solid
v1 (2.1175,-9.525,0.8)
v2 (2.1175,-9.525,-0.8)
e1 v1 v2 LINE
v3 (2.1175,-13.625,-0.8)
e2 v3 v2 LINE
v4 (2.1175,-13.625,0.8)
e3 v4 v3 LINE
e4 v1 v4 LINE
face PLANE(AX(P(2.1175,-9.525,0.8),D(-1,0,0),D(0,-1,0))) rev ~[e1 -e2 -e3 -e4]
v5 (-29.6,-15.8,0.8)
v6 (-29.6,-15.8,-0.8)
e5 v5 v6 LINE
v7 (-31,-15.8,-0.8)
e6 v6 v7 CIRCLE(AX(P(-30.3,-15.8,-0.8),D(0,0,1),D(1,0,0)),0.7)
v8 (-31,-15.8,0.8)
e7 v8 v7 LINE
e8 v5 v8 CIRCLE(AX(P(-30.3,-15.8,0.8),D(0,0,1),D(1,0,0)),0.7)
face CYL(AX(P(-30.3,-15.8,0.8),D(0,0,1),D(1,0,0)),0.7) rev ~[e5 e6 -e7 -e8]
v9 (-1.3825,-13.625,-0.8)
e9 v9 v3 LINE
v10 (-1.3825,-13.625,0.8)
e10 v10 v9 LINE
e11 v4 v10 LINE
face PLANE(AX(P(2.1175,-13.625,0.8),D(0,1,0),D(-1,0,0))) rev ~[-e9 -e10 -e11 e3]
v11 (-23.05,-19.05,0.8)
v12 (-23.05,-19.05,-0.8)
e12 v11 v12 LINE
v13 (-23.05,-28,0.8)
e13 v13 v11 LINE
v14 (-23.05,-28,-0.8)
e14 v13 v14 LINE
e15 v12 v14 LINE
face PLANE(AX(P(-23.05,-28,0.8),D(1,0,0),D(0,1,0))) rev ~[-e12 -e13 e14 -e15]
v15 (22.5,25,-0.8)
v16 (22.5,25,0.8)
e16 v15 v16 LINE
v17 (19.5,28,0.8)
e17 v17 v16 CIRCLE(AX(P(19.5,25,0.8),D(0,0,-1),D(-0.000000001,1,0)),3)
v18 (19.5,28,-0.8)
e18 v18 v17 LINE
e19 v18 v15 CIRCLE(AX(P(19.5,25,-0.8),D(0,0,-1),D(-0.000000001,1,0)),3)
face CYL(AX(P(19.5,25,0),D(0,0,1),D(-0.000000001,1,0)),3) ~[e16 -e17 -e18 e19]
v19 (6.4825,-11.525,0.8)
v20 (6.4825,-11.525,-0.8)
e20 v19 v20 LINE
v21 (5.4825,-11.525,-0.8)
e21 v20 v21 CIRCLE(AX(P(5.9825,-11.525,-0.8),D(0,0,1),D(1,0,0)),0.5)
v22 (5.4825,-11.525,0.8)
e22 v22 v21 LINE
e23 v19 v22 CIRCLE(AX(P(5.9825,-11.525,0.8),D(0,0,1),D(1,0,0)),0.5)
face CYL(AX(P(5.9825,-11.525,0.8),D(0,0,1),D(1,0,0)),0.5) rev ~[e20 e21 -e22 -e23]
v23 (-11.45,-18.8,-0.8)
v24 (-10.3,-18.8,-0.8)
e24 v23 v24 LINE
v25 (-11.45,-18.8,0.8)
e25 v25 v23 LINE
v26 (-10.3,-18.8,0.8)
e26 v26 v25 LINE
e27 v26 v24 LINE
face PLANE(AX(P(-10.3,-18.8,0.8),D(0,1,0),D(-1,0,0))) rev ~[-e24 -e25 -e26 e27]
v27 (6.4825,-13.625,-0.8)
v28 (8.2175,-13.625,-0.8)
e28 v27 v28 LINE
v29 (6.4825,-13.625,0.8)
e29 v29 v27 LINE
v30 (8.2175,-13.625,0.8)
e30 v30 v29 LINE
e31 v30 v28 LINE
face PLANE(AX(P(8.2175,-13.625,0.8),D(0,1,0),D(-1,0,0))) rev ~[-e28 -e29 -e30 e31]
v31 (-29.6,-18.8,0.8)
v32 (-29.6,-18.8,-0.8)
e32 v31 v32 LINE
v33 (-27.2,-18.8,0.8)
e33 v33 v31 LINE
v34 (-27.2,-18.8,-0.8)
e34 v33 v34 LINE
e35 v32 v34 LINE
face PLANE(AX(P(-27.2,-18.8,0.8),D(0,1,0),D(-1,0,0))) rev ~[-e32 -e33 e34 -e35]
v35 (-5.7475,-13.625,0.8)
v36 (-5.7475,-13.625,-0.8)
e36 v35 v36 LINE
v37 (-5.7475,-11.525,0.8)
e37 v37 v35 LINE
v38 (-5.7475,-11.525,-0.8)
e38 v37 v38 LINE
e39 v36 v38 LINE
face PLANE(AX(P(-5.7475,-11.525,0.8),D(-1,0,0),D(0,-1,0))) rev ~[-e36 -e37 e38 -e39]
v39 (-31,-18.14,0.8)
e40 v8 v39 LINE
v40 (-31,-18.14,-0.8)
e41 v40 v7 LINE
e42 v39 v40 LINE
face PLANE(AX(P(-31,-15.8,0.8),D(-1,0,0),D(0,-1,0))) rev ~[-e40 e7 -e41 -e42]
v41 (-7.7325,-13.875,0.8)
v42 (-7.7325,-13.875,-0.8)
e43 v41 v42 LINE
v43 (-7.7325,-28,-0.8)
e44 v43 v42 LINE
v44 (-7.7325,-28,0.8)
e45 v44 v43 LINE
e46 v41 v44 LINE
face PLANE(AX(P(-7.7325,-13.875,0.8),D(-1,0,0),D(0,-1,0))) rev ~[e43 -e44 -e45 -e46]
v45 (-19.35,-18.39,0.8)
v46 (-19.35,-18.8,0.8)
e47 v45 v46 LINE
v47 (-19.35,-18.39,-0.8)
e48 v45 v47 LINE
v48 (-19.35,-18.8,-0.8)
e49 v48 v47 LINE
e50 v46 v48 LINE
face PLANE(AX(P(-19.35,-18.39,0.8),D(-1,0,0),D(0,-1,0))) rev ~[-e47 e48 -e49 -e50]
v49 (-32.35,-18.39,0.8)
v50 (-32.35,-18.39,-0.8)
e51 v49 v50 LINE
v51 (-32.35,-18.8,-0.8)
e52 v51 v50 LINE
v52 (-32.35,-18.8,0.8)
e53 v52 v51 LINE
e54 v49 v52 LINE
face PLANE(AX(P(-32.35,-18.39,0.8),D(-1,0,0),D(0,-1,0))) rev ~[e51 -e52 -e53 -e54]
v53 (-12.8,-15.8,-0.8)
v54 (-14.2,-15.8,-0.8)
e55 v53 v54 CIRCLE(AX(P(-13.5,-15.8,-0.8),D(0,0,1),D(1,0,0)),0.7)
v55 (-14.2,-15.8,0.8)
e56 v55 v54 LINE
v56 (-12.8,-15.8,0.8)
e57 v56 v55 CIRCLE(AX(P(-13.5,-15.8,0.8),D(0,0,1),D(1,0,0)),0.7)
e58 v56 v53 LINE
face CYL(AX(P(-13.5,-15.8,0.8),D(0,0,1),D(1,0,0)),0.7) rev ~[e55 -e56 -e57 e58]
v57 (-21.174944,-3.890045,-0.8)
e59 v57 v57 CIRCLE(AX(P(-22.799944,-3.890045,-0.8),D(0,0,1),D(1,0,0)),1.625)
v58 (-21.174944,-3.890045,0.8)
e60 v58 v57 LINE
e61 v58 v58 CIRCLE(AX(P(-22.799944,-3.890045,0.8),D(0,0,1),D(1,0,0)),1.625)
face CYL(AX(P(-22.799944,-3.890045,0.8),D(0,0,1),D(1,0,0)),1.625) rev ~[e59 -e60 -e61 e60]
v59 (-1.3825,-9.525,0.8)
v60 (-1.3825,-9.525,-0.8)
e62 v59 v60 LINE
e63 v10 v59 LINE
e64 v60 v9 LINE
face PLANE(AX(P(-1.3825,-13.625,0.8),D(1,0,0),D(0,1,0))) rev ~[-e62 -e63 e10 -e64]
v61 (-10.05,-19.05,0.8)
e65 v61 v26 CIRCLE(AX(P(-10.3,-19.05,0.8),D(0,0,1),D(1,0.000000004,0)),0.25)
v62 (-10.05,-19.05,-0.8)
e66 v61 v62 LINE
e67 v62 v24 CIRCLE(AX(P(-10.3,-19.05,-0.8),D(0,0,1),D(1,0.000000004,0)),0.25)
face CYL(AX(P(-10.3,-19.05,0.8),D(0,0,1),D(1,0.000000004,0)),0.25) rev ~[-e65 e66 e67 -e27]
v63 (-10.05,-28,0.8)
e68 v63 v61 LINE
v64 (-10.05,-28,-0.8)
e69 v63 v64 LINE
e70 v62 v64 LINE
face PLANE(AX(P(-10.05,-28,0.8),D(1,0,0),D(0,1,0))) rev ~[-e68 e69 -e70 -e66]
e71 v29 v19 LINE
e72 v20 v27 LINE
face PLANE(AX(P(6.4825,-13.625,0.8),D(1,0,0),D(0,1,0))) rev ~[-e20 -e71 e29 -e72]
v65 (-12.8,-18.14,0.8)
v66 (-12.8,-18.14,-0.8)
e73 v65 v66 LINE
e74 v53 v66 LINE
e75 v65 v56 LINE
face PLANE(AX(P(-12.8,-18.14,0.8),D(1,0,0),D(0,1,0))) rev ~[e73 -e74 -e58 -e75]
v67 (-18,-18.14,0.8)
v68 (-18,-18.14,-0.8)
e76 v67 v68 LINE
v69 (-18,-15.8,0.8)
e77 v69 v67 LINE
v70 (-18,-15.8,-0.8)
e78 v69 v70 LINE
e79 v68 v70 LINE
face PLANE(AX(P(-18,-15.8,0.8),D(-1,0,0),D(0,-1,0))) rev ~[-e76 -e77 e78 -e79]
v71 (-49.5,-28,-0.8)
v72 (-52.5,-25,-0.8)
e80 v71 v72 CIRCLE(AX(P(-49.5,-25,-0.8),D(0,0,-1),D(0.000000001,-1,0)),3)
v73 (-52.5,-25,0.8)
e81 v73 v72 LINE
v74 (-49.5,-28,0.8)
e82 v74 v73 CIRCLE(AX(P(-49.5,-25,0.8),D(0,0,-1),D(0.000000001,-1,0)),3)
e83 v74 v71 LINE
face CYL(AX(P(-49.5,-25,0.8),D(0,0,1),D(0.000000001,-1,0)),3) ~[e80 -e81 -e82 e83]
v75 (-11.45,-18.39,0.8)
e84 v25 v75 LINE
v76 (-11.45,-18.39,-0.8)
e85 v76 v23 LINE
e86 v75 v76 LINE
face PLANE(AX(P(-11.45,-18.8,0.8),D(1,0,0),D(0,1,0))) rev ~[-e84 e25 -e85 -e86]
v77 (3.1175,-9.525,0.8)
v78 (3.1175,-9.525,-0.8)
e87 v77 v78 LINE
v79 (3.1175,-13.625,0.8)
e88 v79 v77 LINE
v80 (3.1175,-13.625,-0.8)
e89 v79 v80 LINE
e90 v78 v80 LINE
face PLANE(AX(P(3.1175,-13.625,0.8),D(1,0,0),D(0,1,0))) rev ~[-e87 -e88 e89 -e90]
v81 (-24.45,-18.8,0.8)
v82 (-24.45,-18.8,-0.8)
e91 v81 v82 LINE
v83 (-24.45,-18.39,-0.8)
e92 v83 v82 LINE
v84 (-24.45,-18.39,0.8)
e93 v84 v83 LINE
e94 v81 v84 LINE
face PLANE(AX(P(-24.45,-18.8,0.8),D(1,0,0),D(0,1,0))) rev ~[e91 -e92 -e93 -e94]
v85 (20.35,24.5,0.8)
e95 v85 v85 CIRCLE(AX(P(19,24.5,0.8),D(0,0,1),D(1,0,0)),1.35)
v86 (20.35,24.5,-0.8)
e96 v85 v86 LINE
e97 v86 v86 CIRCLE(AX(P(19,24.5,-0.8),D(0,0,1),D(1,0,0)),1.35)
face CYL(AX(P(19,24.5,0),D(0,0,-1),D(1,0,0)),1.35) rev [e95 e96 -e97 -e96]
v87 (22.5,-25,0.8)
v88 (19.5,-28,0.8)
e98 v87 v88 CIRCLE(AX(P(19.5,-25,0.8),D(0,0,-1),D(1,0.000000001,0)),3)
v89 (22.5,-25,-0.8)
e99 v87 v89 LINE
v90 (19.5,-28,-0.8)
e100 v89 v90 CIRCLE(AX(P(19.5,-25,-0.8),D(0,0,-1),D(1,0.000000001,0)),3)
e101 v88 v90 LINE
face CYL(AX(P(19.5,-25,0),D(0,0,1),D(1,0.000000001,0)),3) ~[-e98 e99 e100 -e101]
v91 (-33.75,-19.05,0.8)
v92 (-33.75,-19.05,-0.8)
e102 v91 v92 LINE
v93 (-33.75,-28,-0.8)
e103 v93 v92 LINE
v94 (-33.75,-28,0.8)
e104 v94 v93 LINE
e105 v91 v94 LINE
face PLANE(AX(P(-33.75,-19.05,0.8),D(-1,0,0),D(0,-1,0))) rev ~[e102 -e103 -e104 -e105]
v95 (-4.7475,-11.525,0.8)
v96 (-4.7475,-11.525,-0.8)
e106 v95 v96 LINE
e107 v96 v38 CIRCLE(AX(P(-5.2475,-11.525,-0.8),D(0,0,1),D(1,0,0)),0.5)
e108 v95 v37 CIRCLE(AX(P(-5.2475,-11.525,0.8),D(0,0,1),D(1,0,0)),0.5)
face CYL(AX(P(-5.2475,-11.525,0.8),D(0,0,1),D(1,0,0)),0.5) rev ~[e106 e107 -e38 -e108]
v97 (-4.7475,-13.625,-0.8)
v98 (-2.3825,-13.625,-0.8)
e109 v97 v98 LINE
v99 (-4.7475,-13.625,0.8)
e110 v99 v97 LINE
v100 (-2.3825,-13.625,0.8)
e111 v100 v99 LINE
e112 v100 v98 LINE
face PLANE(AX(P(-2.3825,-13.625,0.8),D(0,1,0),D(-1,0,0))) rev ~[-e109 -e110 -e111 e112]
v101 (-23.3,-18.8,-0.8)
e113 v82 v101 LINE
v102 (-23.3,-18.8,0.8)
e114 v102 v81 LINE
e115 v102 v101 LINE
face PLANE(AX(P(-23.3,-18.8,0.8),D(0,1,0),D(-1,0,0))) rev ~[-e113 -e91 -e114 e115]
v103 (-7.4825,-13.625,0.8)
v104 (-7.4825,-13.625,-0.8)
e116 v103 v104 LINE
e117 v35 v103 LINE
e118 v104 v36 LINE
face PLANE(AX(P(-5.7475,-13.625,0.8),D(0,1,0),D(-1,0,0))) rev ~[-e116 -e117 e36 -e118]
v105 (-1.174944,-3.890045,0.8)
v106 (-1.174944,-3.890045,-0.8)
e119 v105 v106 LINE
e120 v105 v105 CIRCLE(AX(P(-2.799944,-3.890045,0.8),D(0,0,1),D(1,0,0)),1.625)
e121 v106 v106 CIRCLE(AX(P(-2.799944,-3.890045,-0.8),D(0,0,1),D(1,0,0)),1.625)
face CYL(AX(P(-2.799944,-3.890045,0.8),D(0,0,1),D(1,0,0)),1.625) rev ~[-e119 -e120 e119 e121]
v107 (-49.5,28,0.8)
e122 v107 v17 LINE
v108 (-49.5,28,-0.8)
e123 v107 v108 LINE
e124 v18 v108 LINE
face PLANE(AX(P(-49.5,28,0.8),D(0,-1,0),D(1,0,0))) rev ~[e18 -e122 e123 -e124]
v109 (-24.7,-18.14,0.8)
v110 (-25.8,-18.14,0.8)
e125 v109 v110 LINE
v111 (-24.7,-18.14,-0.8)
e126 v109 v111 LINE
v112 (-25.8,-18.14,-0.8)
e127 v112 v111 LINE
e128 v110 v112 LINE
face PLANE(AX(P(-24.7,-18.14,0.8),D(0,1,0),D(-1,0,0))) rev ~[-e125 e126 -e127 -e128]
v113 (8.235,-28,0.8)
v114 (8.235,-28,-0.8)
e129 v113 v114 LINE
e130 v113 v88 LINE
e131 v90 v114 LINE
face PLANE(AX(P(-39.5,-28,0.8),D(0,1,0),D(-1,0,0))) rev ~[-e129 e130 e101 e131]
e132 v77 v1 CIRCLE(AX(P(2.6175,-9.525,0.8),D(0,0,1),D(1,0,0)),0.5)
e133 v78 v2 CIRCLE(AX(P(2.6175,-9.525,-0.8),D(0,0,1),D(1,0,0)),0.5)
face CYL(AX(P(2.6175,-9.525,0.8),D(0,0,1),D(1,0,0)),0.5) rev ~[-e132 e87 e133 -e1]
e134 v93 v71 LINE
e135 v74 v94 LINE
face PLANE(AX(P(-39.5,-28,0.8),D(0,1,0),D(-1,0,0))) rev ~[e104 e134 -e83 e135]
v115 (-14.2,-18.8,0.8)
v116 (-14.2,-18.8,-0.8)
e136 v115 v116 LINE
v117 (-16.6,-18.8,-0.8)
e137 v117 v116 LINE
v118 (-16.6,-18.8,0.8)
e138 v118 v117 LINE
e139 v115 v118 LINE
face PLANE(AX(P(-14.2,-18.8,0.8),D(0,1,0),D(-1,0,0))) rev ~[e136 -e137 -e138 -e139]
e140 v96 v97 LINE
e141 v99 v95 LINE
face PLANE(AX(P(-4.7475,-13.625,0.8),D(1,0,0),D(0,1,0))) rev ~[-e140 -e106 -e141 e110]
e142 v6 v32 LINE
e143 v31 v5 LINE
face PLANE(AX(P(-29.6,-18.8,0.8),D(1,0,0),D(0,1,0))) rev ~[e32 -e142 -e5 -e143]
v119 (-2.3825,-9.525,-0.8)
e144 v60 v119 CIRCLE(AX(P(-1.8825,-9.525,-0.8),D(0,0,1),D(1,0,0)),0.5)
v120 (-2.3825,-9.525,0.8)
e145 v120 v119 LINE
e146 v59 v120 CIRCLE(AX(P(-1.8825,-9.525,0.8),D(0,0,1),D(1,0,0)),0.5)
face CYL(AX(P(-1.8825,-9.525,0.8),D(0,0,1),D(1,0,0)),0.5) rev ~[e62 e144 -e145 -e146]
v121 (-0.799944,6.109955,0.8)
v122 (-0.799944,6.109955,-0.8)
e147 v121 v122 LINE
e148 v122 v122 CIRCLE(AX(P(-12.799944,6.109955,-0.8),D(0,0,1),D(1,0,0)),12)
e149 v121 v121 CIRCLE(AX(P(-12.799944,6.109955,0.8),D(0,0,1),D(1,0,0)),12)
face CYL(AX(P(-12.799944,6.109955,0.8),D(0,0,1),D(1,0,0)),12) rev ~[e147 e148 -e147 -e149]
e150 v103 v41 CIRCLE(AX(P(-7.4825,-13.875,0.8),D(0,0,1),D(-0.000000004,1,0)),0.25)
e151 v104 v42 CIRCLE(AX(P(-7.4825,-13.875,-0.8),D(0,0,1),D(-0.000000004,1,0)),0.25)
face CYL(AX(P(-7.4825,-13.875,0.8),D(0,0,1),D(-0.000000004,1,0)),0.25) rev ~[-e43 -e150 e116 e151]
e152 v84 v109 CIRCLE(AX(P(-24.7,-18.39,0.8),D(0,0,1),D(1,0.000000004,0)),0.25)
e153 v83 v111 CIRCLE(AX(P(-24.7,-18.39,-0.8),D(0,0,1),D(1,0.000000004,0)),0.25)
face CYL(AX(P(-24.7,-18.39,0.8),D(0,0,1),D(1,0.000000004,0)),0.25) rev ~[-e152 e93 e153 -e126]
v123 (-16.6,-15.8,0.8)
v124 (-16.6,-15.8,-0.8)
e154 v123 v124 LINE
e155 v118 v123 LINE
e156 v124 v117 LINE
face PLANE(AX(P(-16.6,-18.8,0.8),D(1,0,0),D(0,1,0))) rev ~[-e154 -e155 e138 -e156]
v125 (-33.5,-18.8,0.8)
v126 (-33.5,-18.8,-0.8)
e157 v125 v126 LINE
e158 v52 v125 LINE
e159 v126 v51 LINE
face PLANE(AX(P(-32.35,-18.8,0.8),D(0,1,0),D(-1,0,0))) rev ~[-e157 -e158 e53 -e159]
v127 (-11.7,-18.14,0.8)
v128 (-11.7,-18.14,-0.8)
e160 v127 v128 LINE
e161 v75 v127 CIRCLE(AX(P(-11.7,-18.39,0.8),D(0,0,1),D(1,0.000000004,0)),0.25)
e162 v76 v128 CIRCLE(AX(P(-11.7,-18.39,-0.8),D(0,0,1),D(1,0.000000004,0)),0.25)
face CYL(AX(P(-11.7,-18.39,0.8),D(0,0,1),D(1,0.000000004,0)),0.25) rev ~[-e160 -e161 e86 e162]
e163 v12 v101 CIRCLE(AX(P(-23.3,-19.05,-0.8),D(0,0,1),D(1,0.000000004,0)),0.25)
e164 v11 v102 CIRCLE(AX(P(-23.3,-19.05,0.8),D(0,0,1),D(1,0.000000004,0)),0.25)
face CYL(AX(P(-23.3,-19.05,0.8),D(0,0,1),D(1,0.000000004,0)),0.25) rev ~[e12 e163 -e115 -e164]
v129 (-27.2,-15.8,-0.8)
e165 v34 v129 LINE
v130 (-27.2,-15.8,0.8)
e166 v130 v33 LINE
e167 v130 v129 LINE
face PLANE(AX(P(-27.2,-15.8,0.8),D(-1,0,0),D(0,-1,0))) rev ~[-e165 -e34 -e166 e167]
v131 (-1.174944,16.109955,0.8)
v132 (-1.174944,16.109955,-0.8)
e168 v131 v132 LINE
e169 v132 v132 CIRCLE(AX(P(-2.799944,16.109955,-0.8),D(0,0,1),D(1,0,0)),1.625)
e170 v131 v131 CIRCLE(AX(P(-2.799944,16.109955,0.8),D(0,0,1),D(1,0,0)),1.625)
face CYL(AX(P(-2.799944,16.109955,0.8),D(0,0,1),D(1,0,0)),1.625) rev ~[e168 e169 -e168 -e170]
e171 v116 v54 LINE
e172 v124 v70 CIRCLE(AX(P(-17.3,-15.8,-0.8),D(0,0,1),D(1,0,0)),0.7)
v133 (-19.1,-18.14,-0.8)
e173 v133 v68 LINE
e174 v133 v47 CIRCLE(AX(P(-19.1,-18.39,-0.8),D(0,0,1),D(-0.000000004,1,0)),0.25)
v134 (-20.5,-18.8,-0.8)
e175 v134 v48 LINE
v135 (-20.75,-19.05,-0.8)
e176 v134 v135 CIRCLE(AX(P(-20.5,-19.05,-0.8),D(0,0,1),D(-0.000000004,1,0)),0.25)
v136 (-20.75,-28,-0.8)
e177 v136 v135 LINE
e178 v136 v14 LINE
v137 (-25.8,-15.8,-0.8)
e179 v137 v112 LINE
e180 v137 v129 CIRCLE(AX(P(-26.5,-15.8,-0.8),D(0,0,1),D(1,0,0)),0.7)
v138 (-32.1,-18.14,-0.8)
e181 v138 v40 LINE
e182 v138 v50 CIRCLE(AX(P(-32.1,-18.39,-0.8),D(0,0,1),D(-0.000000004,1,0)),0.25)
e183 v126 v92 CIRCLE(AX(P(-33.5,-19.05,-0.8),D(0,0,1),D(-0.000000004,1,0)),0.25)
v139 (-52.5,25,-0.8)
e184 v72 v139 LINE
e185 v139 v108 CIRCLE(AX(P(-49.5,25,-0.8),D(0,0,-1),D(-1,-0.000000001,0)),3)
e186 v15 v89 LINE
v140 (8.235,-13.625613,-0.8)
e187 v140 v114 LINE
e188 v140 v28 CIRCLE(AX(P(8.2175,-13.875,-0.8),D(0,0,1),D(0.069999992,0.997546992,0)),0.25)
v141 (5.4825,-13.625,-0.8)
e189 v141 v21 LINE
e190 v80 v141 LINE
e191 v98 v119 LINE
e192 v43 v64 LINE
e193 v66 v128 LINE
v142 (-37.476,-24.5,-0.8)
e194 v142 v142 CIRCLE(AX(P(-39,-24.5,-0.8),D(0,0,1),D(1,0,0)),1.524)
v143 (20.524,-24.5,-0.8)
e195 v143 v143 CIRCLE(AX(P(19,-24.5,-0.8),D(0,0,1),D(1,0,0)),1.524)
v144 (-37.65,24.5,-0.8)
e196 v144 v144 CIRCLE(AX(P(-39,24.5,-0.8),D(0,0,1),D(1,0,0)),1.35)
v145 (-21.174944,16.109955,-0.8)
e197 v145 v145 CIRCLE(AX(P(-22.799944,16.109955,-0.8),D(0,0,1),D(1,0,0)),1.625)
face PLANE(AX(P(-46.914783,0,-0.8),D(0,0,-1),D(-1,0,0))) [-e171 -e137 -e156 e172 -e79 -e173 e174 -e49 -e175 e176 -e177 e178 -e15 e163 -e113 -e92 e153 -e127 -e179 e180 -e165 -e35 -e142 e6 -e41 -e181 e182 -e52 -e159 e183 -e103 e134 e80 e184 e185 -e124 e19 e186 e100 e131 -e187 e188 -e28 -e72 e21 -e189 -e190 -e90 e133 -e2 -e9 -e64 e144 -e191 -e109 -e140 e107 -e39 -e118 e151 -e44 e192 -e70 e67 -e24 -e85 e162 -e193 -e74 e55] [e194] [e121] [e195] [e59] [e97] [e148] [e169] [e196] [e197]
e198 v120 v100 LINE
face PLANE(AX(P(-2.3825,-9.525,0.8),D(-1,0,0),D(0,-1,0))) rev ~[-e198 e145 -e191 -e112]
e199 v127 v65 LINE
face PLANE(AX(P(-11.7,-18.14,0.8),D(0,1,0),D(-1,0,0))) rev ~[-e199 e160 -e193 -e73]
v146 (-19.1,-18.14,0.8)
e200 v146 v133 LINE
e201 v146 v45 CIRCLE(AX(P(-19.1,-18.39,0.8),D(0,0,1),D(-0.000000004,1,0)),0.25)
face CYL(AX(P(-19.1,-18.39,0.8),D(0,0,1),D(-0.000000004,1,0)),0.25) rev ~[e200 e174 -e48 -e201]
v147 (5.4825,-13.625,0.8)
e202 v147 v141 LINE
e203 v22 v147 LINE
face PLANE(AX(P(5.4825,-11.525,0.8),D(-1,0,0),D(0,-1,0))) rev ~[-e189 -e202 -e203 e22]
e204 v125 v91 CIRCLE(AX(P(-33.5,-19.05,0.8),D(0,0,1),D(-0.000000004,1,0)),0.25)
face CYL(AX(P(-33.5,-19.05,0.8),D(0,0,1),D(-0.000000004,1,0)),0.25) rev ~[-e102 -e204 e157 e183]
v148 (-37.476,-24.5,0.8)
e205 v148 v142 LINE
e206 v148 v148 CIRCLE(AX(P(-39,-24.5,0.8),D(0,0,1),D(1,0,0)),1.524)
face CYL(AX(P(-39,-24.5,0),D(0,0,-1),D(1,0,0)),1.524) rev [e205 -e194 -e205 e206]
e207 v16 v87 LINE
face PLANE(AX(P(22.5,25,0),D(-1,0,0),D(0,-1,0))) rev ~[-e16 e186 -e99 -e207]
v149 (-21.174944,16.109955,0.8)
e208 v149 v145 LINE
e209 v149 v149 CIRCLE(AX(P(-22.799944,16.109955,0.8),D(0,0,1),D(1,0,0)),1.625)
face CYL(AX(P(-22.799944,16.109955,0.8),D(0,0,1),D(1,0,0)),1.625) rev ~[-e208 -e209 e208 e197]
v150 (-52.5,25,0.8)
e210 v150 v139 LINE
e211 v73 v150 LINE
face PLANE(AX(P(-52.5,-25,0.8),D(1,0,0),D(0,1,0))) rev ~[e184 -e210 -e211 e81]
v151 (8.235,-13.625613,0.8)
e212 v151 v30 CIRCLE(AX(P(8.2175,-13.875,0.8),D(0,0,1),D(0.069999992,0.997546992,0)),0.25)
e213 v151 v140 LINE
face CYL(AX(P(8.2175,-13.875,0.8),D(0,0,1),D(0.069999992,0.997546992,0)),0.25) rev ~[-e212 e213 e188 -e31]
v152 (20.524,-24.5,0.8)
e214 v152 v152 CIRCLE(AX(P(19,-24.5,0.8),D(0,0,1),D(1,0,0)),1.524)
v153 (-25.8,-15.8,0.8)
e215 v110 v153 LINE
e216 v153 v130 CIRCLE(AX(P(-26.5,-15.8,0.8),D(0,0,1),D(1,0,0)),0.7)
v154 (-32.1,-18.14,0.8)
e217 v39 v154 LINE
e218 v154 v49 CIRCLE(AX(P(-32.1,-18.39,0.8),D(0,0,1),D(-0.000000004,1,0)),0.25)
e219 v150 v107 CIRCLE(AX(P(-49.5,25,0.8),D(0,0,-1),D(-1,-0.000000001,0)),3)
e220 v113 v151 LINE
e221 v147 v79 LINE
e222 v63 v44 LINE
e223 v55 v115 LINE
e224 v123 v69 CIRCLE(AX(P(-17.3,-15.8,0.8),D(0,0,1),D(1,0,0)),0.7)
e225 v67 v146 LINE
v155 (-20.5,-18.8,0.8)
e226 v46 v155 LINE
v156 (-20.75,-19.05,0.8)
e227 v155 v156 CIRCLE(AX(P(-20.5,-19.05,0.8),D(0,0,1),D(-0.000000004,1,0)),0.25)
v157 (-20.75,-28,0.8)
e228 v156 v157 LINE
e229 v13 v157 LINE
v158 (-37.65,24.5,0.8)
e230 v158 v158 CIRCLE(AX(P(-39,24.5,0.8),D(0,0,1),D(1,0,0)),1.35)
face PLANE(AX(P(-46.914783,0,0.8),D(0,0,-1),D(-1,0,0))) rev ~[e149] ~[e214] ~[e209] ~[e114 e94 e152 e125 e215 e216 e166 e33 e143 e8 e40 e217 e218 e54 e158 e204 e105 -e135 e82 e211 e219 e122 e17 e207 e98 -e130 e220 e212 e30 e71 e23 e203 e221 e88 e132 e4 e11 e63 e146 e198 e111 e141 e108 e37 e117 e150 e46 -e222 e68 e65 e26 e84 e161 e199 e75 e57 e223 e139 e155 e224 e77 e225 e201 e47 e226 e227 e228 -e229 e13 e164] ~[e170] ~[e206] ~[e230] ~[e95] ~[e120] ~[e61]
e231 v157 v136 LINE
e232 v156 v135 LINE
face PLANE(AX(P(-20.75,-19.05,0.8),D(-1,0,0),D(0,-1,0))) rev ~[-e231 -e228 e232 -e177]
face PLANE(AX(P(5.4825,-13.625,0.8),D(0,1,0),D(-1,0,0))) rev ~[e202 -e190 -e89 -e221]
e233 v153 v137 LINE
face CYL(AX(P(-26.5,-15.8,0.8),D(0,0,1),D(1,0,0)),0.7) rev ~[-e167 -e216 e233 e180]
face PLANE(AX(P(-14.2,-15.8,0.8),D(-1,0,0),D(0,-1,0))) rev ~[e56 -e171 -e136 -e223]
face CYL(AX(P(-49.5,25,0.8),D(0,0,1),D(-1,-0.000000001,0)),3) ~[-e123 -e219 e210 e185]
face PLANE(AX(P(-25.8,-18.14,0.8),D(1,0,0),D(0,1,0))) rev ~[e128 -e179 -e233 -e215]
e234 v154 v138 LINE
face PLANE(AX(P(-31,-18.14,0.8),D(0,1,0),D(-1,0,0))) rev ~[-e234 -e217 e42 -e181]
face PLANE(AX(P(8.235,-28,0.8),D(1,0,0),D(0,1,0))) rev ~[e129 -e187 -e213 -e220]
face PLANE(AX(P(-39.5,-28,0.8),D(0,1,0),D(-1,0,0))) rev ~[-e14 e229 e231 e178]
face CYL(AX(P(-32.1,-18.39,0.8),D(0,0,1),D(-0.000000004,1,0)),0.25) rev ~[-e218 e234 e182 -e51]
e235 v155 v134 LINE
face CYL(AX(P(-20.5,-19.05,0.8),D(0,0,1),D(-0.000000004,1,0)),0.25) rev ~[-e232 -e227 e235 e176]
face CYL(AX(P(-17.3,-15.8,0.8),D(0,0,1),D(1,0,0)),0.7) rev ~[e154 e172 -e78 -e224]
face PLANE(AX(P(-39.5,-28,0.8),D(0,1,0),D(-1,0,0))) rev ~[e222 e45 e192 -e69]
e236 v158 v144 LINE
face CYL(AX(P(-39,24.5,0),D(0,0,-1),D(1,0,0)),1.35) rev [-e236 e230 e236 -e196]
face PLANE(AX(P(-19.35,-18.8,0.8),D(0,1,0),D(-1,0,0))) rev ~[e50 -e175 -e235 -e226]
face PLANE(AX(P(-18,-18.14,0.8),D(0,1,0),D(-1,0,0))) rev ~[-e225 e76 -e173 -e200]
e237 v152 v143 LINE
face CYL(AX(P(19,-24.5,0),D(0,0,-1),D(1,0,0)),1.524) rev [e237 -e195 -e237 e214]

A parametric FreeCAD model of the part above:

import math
import FreeCAD as App
import Part
import Sketcher

doc = App.newDocument("Part")
body = doc.addObject("PartDesign::Body", "Body")

# Sketch on XY plane
sketch1 = body.newObject("Sketcher::SketchObject", "Sketch")
sketch1.AttachmentSupport = (doc.getObject("XY_Plane"), [""])
sketch1.MapMode = "FlatFace"
sketch1.addGeometry(Part.LineSegment(App.Vector(22.5, -25, 0), App.Vector(22.5, 25, 0)), False)
sketch1.addGeometry(Part.ArcOfCircle(Part.Circle(App.Vector(19.5, 25, 0), App.Vector(0, 0, 1), 3), math.radians(0), math.radians(90)), False)
sketch1.addGeometry(Part.LineSegment(App.Vector(19.5, 28, 0), App.Vector(-39.5, 28, 0)), False)
sketch1.addGeometry(Part.ArcOfCircle(Part.Circle(App.Vector(-39.5, 25, 0), App.Vector(0, 0, 1), 3), math.radians(90), math.radians(180)), False)
sketch1.addGeometry(Part.LineSegment(App.Vector(-42.5, 25, 0), App.Vector(-42.5, -25, 0)), False)
sketch1.addGeometry(Part.ArcOfCircle(Part.Circle(App.Vector(-39.5, -25, 0), App.Vector(0, 0, 1), 3), math.radians(180), math.radians(270)), False)
sketch1.addGeometry(Part.LineSegment(App.Vector(-39.5, -28, 0), App.Vector(19.5, -28, 0)), False)
sketch1.addGeometry(Part.ArcOfCircle(Part.Circle(App.Vector(19.5, -25, 0), App.Vector(0, 0, 1), 3), math.radians(-90), math.radians(0)), False)
sketch1.addGeometry(Part.Circle(App.Vector(19, -24.5, 0), App.Vector(0, 0, 1), 1.5), False)
sketch1.addGeometry(Part.Circle(App.Vector(-39, -24.5, 0), App.Vector(0, 0, 1), 1.5), False)
sketch1.addGeometry(Part.Circle(App.Vector(19, 24.5, 0), App.Vector(0, 0, 1), 1.4), False)
sketch1.addGeometry(Part.Circle(App.Vector(-39, 24.5, 0), App.Vector(0, 0, 1), 1.4), False)
sketch1.addConstraint(Sketcher.Constraint("Tangent", 0, 2, 1, 1))
sketch1.addConstraint(Sketcher.Constraint("Tangent", 1, 2, 2, 1))
sketch1.addConstraint(Sketcher.Constraint("Tangent", 2, 2, 3, 1))
sketch1.addConstraint(Sketcher.Constraint("Tangent", 3, 2, 4, 1))
sketch1.addConstraint(Sketcher.Constraint("Tangent", 4, 2, 5, 1))
sketch1.addConstraint(Sketcher.Constraint("Tangent", 5, 2, 6, 1))
sketch1.addConstraint(Sketcher.Constraint("Tangent", 6, 2, 7, 1))
sketch1.addConstraint(Sketcher.Constraint("Tangent", 7, 2, 0, 1))
sketch1.addConstraint(Sketcher.Constraint("Vertical", 0))
sketch1.addConstraint(Sketcher.Constraint("Horizontal", 2))
sketch1.addConstraint(Sketcher.Constraint("Vertical", 4))
sketch1.addConstraint(Sketcher.Constraint("Horizontal", 6))
sketch1.addConstraint(Sketcher.Constraint("Equal", 1, 3))
sketch1.addConstraint(Sketcher.Constraint("Equal", 3, 5))
sketch1.addConstraint(Sketcher.Constraint("Equal", 5, 7))
sketch1.addConstraint(Sketcher.Constraint("Equal", 8, 9))
sketch1.addConstraint(Sketcher.Constraint("Equal", 10, 11))
sketch1.addConstraint(Sketcher.Constraint("Symmetric", 8, 3, 10, 3, -1))
sketch1.addConstraint(Sketcher.Constraint("Symmetric", 9, 3, 11, 3, -1))
sketch1.addConstraint(Sketcher.Constraint("Horizontal", 8, 3, 9, 3))
sketch1.addConstraint(Sketcher.Constraint("Radius", 1, 3.0))
sketch1.addConstraint(Sketcher.Constraint("Diameter", 10, 2.7))
sketch1.addConstraint(Sketcher.Constraint("DistanceX", 2, 2, 2, 1, 59.0))
sketch1.addConstraint(Sketcher.Constraint("DistanceY", 0, 1, 0, 2, 50.0))
sketch1.addConstraint(Sketcher.Constraint("Diameter", 8, 3.048))
sketch1.addConstraint(Sketcher.Constraint("DistanceY", -1, 1, 1, 3, 25.0))
sketch1.addConstraint(Sketcher.Constraint("DistanceX", -1, 1, 8, 3, 19.0))
sketch1.addConstraint(Sketcher.Constraint("DistanceX", 9, 3, -1, 1, 39.0))
sketch1.addConstraint(Sketcher.Constraint("DistanceY", 8, 3, 10, 3, 49.0))
sketch1.addConstraint(Sketcher.Constraint("DistanceX", -1, 1, 1, 3, 19.5))
pad1 = body.newObject("PartDesign::Pad", "Pad")
pad1.Profile = sketch1
pad1.Length = 1.6
pad1.Midplane = True

# Sketch on XY plane
sketch2 = body.newObject("Sketcher::SketchObject", "Sketch001")
sketch2.AttachmentSupport = (doc.getObject("XY_Plane"), [""])
sketch2.MapMode = "FlatFace"
sketch2.AttachmentOffset = App.Placement(App.Vector(0, 0, 0.8), App.Rotation())
sketch2.addGeometry(Part.Circle(App.Vector(-2.8, 16.1, 0), App.Vector(0, 0, 1), 1.6), False)
sketch2.addGeometry(Part.Circle(App.Vector(-22.8, 16.1, 0), App.Vector(0, 0, 1), 1.6), False)
sketch2.addGeometry(Part.Circle(App.Vector(-22.8, -3.9, 0), App.Vector(0, 0, 1), 1.6), False)
sketch2.addGeometry(Part.Circle(App.Vector(-2.8, -3.9, 0), App.Vector(0, 0, 1), 1.6), False)
sketch2.addGeometry(Part.Circle(App.Vector(-12.8, 6.1, 0), App.Vector(0, 0, 1), 12), False)
sketch2.addConstraint(Sketcher.Constraint("Equal", 0, 1))
sketch2.addConstraint(Sketcher.Constraint("Equal", 1, 2))
sketch2.addConstraint(Sketcher.Constraint("Equal", 2, 3))
sketch2.addConstraint(Sketcher.Constraint("Horizontal", 0, 3, 1, 3))
sketch2.addConstraint(Sketcher.Constraint("Horizontal", 2, 3, 3, 3))
sketch2.addConstraint(Sketcher.Constraint("Vertical", 1, 3, 2, 3))
sketch2.addConstraint(Sketcher.Constraint("Vertical", 0, 3, 3, 3))
sketch2.addConstraint(Sketcher.Constraint("Diameter", 4, 24.0))
sketch2.addConstraint(Sketcher.Constraint("Diameter", 0, 3.25))
sketch2.addConstraint(Sketcher.Constraint("DistanceX", 1, 3, 0, 3, 20.0))
sketch2.addConstraint(Sketcher.Constraint("DistanceY", 2, 3, 1, 3, 20.0))
sketch2.addConstraint(Sketcher.Constraint("DistanceX", 4, 3, 0, 3, 10.0))
sketch2.addConstraint(Sketcher.Constraint("DistanceY", 4, 3, 0, 3, 10.0))
sketch2.addConstraint(Sketcher.Constraint("DistanceX", 0, 3, -1, 1, 2.799944))
sketch2.addConstraint(Sketcher.Constraint("DistanceY", -1, 1, 0, 3, 16.109955))
pocket1 = body.newObject("PartDesign::Pocket", "Pocket")
pocket1.Profile = sketch2
pocket1.Type = "ThroughAll"

# Sketch on XY plane
sketch3 = body.newObject("Sketcher::SketchObject", "Sketch002")
sketch3.AttachmentSupport = (doc.getObject("XY_Plane"), [""])
sketch3.MapMode = "FlatFace"
sketch3.AttachmentOffset = App.Placement(App.Vector(0, 0, 0.8), App.Rotation())
sketch3.addGeometry(Part.LineSegment(App.Vector(-39.5, 28, 0), App.Vector(-49.5, 28, 0)), False)
sketch3.addGeometry(Part.ArcOfCircle(Part.Circle(App.Vector(-49.5, 25, 0), App.Vector(0, 0, 1), 3), math.radians(90), math.radians(180)), False)
sketch3.addGeometry(Part.LineSegment(App.Vector(-52.5, 25, 0), App.Vector(-52.5, -25, 0)), False)
sketch3.addGeometry(Part.ArcOfCircle(Part.Circle(App.Vector(-49.5, -25, 0), App.Vector(0, 0, 1), 3), math.radians(180), math.radians(270)), False)
sketch3.addGeometry(Part.LineSegment(App.Vector(-49.5, -28, 0), App.Vector(-39.5, -28, 0)), False)
sketch3.addGeometry(Part.ArcOfCircle(Part.Circle(App.Vector(-39.5, -25, 0), App.Vector(0, 0, 1), 3), math.radians(180), math.radians(270)), False)
sketch3.addGeometry(Part.LineSegment(App.Vector(-42.5, -25, 0), App.Vector(-42.5, 25, 0)), False)
sketch3.addGeometry(Part.ArcOfCircle(Part.Circle(App.Vector(-39.5, 25, 0), App.Vector(0, 0, 1), 3), math.radians(90), math.radians(180)), False)
sketch3.addConstraint(Sketcher.Constraint("Tangent", 0, 2, 1, 1))
sketch3.addConstraint(Sketcher.Constraint("Tangent", 1, 2, 2, 1))
sketch3.addConstraint(Sketcher.Constraint("Tangent", 2, 2, 3, 1))
sketch3.addConstraint(Sketcher.Constraint("Tangent", 3, 2, 4, 1))
sketch3.addConstraint(Sketcher.Constraint("Tangent", 4, 2, 5, 2))
sketch3.addConstraint(Sketcher.Constraint("Tangent", 5, 1, 6, 1))
sketch3.addConstraint(Sketcher.Constraint("Tangent", 6, 2, 7, 2))
sketch3.addConstraint(Sketcher.Constraint("Tangent", 7, 1, 0, 1))
sketch3.addConstraint(Sketcher.Constraint("Horizontal", 0))
sketch3.addConstraint(Sketcher.Constraint("Vertical", 2))
sketch3.addConstraint(Sketcher.Constraint("Horizontal", 4))
sketch3.addConstraint(Sketcher.Constraint("Vertical", 6))
sketch3.addConstraint(Sketcher.Constraint("Equal", 1, 3))
sketch3.addConstraint(Sketcher.Constraint("Equal", 3, 5))
sketch3.addConstraint(Sketcher.Constraint("Equal", 5, 7))
sketch3.addConstraint(Sketcher.Constraint("Radius", 1, 3.0))
sketch3.addConstraint(Sketcher.Constraint("DistanceX", 0, 2, 0, 1, 10.0))
sketch3.addConstraint(Sketcher.Constraint("DistanceY", 2, 2, 2, 1, 50.0))
sketch3.addConstraint(Sketcher.Constraint("DistanceY", -1, 1, 1, 3, 25.0))
sketch3.addConstraint(Sketcher.Constraint("DistanceX", 1, 3, -1, 1, 49.5))
pad2 = body.newObject("PartDesign::Pad", "Pad001")
pad2.Profile = sketch3
pad2.Length = 1.6
pad2.Reversed = True

# Sketch on XY plane
sketch4 = body.newObject("Sketcher::SketchObject", "Sketch003")
sketch4.AttachmentSupport = (doc.getObject("XY_Plane"), [""])
sketch4.MapMode = "FlatFace"
sketch4.AttachmentOffset = App.Placement(App.Vector(0, 0, 0.8), App.Rotation())
sketch4.addGeometry(Part.LineSegment(App.Vector(-27.2, -18.8, 0), App.Vector(-29.6, -18.8, 0)), False)
sketch4.addGeometry(Part.LineSegment(App.Vector(-29.6, -18.8, 0), App.Vector(-29.6, -15.8, 0)), False)
sketch4.addGeometry(Part.ArcOfCircle(Part.Circle(App.Vector(-30.3, -15.8, 0), App.Vector(0, 0, 1), 0.7), math.radians(0), math.radians(180)), False)
sketch4.addGeometry(Part.LineSegment(App.Vector(-31, -15.8, 0), App.Vector(-31, -18.14, 0)), False)
sketch4.addGeometry(Part.LineSegment(App.Vector(-31, -18.14, 0), App.Vector(-32.1, -18.14, 0)), False)
sketch4.addGeometry(Part.ArcOfCircle(Part.Circle(App.Vector(-32.1, -18.39, 0), App.Vector(0, 0, 1), 0.25), math.radians(90), math.radians(180)), False)
sketch4.addGeometry(Part.LineSegment(App.Vector(-32.35, -18.39, 0), App.Vector(-32.35, -18.8, 0)), False)
sketch4.addGeometry(Part.LineSegment(App.Vector(-32.35, -18.8, 0), App.Vector(-33.5, -18.8, 0)), False)
sketch4.addGeometry(Part.ArcOfCircle(Part.Circle(App.Vector(-33.5, -19.05, 0), App.Vector(0, 0, 1), 0.25), math.radians(90), math.radians(180)), False)
sketch4.addGeometry(Part.LineSegment(App.Vector(-33.75, -19.05, 0), App.Vector(-33.75, -28, 0)), False)
sketch4.addGeometry(Part.LineSegment(App.Vector(-33.75, -28, 0), App.Vector(-23.05, -28, 0)), False)
sketch4.addGeometry(Part.LineSegment(App.Vector(-23.05, -28, 0), App.Vector(-23.05, -19.05, 0)), False)
sketch4.addGeometry(Part.ArcOfCircle(Part.Circle(App.Vector(-23.3, -19.05, 0), App.Vector(0, 0, 1), 0.25), math.radians(0), math.radians(90)), False)
sketch4.addGeometry(Part.LineSegment(App.Vector(-23.3, -18.8, 0), App.Vector(-24.45, -18.8, 0)), False)
sketch4.addGeometry(Part.LineSegment(App.Vector(-24.45, -18.8, 0), App.Vector(-24.45, -18.39, 0)), False)
sketch4.addGeometry(Part.ArcOfCircle(Part.Circle(App.Vector(-24.7, -18.39, 0), App.Vector(0, 0, 1), 0.25), math.radians(0), math.radians(90)), False)
sketch4.addGeometry(Part.LineSegment(App.Vector(-24.7, -18.14, 0), App.Vector(-25.8, -18.14, 0)), False)
sketch4.addGeometry(Part.LineSegment(App.Vector(-25.8, -18.14, 0), App.Vector(-25.8, -15.8, 0)), False)
sketch4.addGeometry(Part.ArcOfCircle(Part.Circle(App.Vector(-26.5, -15.8, 0), App.Vector(0, 0, 1), 0.7), math.radians(0), math.radians(180)), False)
sketch4.addGeometry(Part.LineSegment(App.Vector(-27.2, -15.8, 0), App.Vector(-27.2, -18.8, 0)), False)
sketch4.addGeometry(Part.LineSegment(App.Vector(-14.2, -18.8, 0), App.Vector(-16.6, -18.8, 0)), False)
sketch4.addGeometry(Part.LineSegment(App.Vector(-16.6, -18.8, 0), App.Vector(-16.6, -15.8, 0)), False)
sketch4.addGeometry(Part.ArcOfCircle(Part.Circle(App.Vector(-17.3, -15.8, 0), App.Vector(0, 0, 1), 0.7), math.radians(0), math.radians(180)), False)
sketch4.addGeometry(Part.LineSegment(App.Vector(-18, -15.8, 0), App.Vector(-18, -18.14, 0)), False)
sketch4.addGeometry(Part.LineSegment(App.Vector(-18, -18.14, 0), App.Vector(-19.1, -18.14, 0)), False)
sketch4.addGeometry(Part.ArcOfCircle(Part.Circle(App.Vector(-19.1, -18.39, 0), App.Vector(0, 0, 1), 0.25), math.radians(90), math.radians(180)), False)
sketch4.addGeometry(Part.LineSegment(App.Vector(-19.35, -18.39, 0), App.Vector(-19.35, -18.8, 0)), False)
sketch4.addGeometry(Part.LineSegment(App.Vector(-19.35, -18.8, 0), App.Vector(-20.5, -18.8, 0)), False)
sketch4.addGeometry(Part.ArcOfCircle(Part.Circle(App.Vector(-20.5, -19.05, 0), App.Vector(0, 0, 1), 0.25), math.radians(90), math.radians(180)), False)
sketch4.addGeometry(Part.LineSegment(App.Vector(-20.75, -19.05, 0), App.Vector(-20.75, -28, 0)), False)
sketch4.addGeometry(Part.LineSegment(App.Vector(-20.75, -28, 0), App.Vector(-10.05, -28, 0)), False)
sketch4.addGeometry(Part.LineSegment(App.Vector(-10.05, -28, 0), App.Vector(-10.05, -19.05, 0)), False)
sketch4.addGeometry(Part.ArcOfCircle(Part.Circle(App.Vector(-10.3, -19.05, 0), App.Vector(0, 0, 1), 0.25), math.radians(0), math.radians(90)), False)
sketch4.addGeometry(Part.LineSegment(App.Vector(-10.3, -18.8, 0), App.Vector(-11.45, -18.8, 0)), False)
sketch4.addGeometry(Part.LineSegment(App.Vector(-11.45, -18.8, 0), App.Vector(-11.45, -18.39, 0)), False)
sketch4.addGeometry(Part.ArcOfCircle(Part.Circle(App.Vector(-11.7, -18.39, 0), App.Vector(0, 0, 1), 0.25), math.radians(0), math.radians(90)), False)
sketch4.addGeometry(Part.LineSegment(App.Vector(-11.7, -18.14, 0), App.Vector(-12.8, -18.14, 0)), False)
sketch4.addGeometry(Part.LineSegment(App.Vector(-12.8, -18.14, 0), App.Vector(-12.8, -15.8, 0)), False)
sketch4.addGeometry(Part.ArcOfCircle(Part.Circle(App.Vector(-13.5, -15.8, 0), App.Vector(0, 0, 1), 0.7), math.radians(0), math.radians(180)), False)
sketch4.addGeometry(Part.LineSegment(App.Vector(-14.2, -15.8, 0), App.Vector(-14.2, -18.8, 0)), False)
sketch4.addGeometry(Part.LineSegment(App.Vector(-2.382, -9.525, 0), App.Vector(-2.382, -13.625, 0)), False)
sketch4.addGeometry(Part.LineSegment(App.Vector(-2.382, -13.625, 0), App.Vector(-4.747, -13.625, 0)), False)
sketch4.addGeometry(Part.LineSegment(App.Vector(-4.747, -13.625, 0), App.Vector(-4.747, -11.525, 0)), False)
sketch4.addGeometry(Part.ArcOfCircle(Part.Circle(App.Vector(-5.247, -11.525, 0), App.Vector(0, 0, 1), 0.5), math.radians(0), math.radians(180)), False)
sketch4.addGeometry(Part.LineSegment(App.Vector(-5.747, -11.525, 0), App.Vector(-5.747, -13.625, 0)), False)
sketch4.addGeometry(Part.LineSegment(App.Vector(-5.747, -13.625, 0), App.Vector(-7.482, -13.625, 0)), False)
sketch4.addGeometry(Part.ArcOfCircle(Part.Circle(App.Vector(-7.482, -13.875, 0), App.Vector(0, 0, 1), 0.25), math.radians(90), math.radians(180)), False)
sketch4.addGeometry(Part.LineSegment(App.Vector(-7.732, -13.875, 0), App.Vector(-7.732, -28, 0)), False)
sketch4.addGeometry(Part.LineSegment(App.Vector(-7.732, -28, 0), App.Vector(8.235, -28, 0)), False)
sketch4.addGeometry(Part.LineSegment(App.Vector(8.235, -28, 0), App.Vector(8.235, -13.626, 0)), False)
sketch4.addGeometry(Part.ArcOfCircle(Part.Circle(App.Vector(8.218, -13.875, 0), App.Vector(0, 0, 1), 0.25), math.radians(85.99), math.radians(90)), False)
sketch4.addGeometry(Part.LineSegment(App.Vector(8.217, -13.625, 0), App.Vector(6.482, -13.625, 0)), False)
sketch4.addGeometry(Part.LineSegment(App.Vector(6.482, -13.625, 0), App.Vector(6.482, -11.525, 0)), False)
sketch4.addGeometry(Part.ArcOfCircle(Part.Circle(App.Vector(5.982, -11.525, 0), App.Vector(0, 0, 1), 0.5), math.radians(0), math.radians(180)), False)
sketch4.addGeometry(Part.LineSegment(App.Vector(5.482, -11.525, 0), App.Vector(5.482, -13.625, 0)), False)
sketch4.addGeometry(Part.LineSegment(App.Vector(5.482, -13.625, 0), App.Vector(3.118, -13.625, 0)), False)
sketch4.addGeometry(Part.LineSegment(App.Vector(3.118, -13.625, 0), App.Vector(3.118, -9.525, 0)), False)
sketch4.addGeometry(Part.ArcOfCircle(Part.Circle(App.Vector(2.618, -9.525, 0), App.Vector(0, 0, 1), 0.5), math.radians(0), math.radians(180)), False)
sketch4.addGeometry(Part.LineSegment(App.Vector(2.118, -9.525, 0), App.Vector(2.118, -13.625, 0)), False)
sketch4.addGeometry(Part.LineSegment(App.Vector(2.118, -13.625, 0), App.Vector(-1.383, -13.625, 0)), False)
sketch4.addGeometry(Part.LineSegment(App.Vector(-1.383, -13.625, 0), App.Vector(-1.383, -9.525, 0)), False)
sketch4.addGeometry(Part.ArcOfCircle(Part.Circle(App.Vector(-1.883, -9.525, 0), App.Vector(0, 0, 1), 0.5), math.radians(0), math.radians(180)), False)
sketch4.addConstraint(Sketcher.Constraint("Coincident", 0, 2, 1, 1))
sketch4.addConstraint(Sketcher.Constraint("Tangent", 1, 2, 2, 1))
sketch4.addConstraint(Sketcher.Constraint("Tangent", 2, 2, 3, 1))
sketch4.addConstraint(Sketcher.Constraint("Coincident", 3, 2, 4, 1))
sketch4.addConstraint(Sketcher.Constraint("Tangent", 4, 2, 5, 1))
sketch4.addConstraint(Sketcher.Constraint("Tangent", 5, 2, 6, 1))
sketch4.addConstraint(Sketcher.Constraint("Coincident", 6, 2, 7, 1))
sketch4.addConstraint(Sketcher.Constraint("Tangent", 7, 2, 8, 1))
sketch4.addConstraint(Sketcher.Constraint("Tangent", 8, 2, 9, 1))
sketch4.addConstraint(Sketcher.Constraint("Coincident", 9, 2, 10, 1))
sketch4.addConstraint(Sketcher.Constraint("Coincident", 10, 2, 11, 1))
sketch4.addConstraint(Sketcher.Constraint("Tangent", 11, 2, 12, 1))
sketch4.addConstraint(Sketcher.Constraint("Tangent", 12, 2, 13, 1))
sketch4.addConstraint(Sketcher.Constraint("Coincident", 13, 2, 14, 1))
sketch4.addConstraint(Sketcher.Constraint("Tangent", 14, 2, 15, 1))
sketch4.addConstraint(Sketcher.Constraint("Tangent", 15, 2, 16, 1))
sketch4.addConstraint(Sketcher.Constraint("Coincident", 16, 2, 17, 1))
sketch4.addConstraint(Sketcher.Constraint("Tangent", 17, 2, 18, 1))
sketch4.addConstraint(Sketcher.Constraint("Tangent", 18, 2, 19, 1))
sketch4.addConstraint(Sketcher.Constraint("Coincident", 19, 2, 0, 1))
sketch4.addConstraint(Sketcher.Constraint("Coincident", 20, 2, 21, 1))
sketch4.addConstraint(Sketcher.Constraint("Tangent", 21, 2, 22, 1))
sketch4.addConstraint(Sketcher.Constraint("Tangent", 22, 2, 23, 1))
sketch4.addConstraint(Sketcher.Constraint("Coincident", 23, 2, 24, 1))
sketch4.addConstraint(Sketcher.Constraint("Tangent", 24, 2, 25, 1))
sketch4.addConstraint(Sketcher.Constraint("Tangent", 25, 2, 26, 1))
sketch4.addConstraint(Sketcher.Constraint("Coincident", 26, 2, 27, 1))
sketch4.addConstraint(Sketcher.Constraint("Tangent", 27, 2, 28, 1))
sketch4.addConstraint(Sketcher.Constraint("Tangent", 28, 2, 29, 1))
sketch4.addConstraint(Sketcher.Constraint("Coincident", 29, 2, 30, 1))
sketch4.addConstraint(Sketcher.Constraint("Coincident", 30, 2, 31, 1))
sketch4.addConstraint(Sketcher.Constraint("Tangent", 31, 2, 32, 1))
sketch4.addConstraint(Sketcher.Constraint("Tangent", 32, 2, 33, 1))
sketch4.addConstraint(Sketcher.Constraint("Coincident", 33, 2, 34, 1))
sketch4.addConstraint(Sketcher.Constraint("Tangent", 34, 2, 35, 1))
sketch4.addConstraint(Sketcher.Constraint("Tangent", 35, 2, 36, 1))
sketch4.addConstraint(Sketcher.Constraint("Coincident", 36, 2, 37, 1))
sketch4.addConstraint(Sketcher.Constraint("Tangent", 37, 2, 38, 1))
sketch4.addConstraint(Sketcher.Constraint("Tangent", 38, 2, 39, 1))
sketch4.addConstraint(Sketcher.Constraint("Coincident", 39, 2, 20, 1))
sketch4.addConstraint(Sketcher.Constraint("Coincident", 40, 2, 41, 1))
sketch4.addConstraint(Sketcher.Constraint("Coincident", 41, 2, 42, 1))
sketch4.addConstraint(Sketcher.Constraint("Tangent", 42, 2, 43, 1))
sketch4.addConstraint(Sketcher.Constraint("Tangent", 43, 2, 44, 1))
sketch4.addConstraint(Sketcher.Constraint("Coincident", 44, 2, 45, 1))
sketch4.addConstraint(Sketcher.Constraint("Tangent", 45, 2, 46, 1))
sketch4.addConstraint(Sketcher.Constraint("Tangent", 46, 2, 47, 1))
sketch4.addConstraint(Sketcher.Constraint("Coincident", 47, 2, 48, 1))
sketch4.addConstraint(Sketcher.Constraint("Coincident", 48, 2, 49, 1))
sketch4.addConstraint(Sketcher.Constraint("Coincident", 49, 2, 50, 1))
sketch4.addConstraint(Sketcher.Constraint("Tangent", 50, 2, 51, 1))
sketch4.addConstraint(Sketcher.Constraint("Coincident", 51, 2, 52, 1))
sketch4.addConstraint(Sketcher.Constraint("Tangent", 52, 2, 53, 1))
sketch4.addConstraint(Sketcher.Constraint("Tangent", 53, 2, 54, 1))
sketch4.addConstraint(Sketcher.Constraint("Coincident", 54, 2, 55, 1))
sketch4.addConstraint(Sketcher.Constraint("Coincident", 55, 2, 56, 1))
sketch4.addConstraint(Sketcher.Constraint("Tangent", 56, 2, 57, 1))
sketch4.addConstraint(Sketcher.Constraint("Tangent", 57, 2, 58, 1))
sketch4.addConstraint(Sketcher.Constraint("Coincident", 58, 2, 59, 1))
sketch4.addConstraint(Sketcher.Constraint("Coincident", 59, 2, 60, 1))
sketch4.addConstraint(Sketcher.Constraint("Tangent", 60, 2, 61, 1))
sketch4.addConstraint(Sketcher.Constraint("Tangent", 61, 2, 40, 1))
sketch4.addConstraint(Sketcher.Constraint("Horizontal", 0))
sketch4.addConstraint(Sketcher.Constraint("Vertical", 1))
sketch4.addConstraint(Sketcher.Constraint("Vertical", 3))
sketch4.addConstraint(Sketcher.Constraint("Horizontal", 4))
sketch4.addConstraint(Sketcher.Constraint("Vertical", 6))
sketch4.addConstraint(Sketcher.Constraint("Horizontal", 7))
sketch4.addConstraint(Sketcher.Constraint("Vertical", 9))
sketch4.addConstraint(Sketcher.Constraint("Horizontal", 10))
sketch4.addConstraint(Sketcher.Constraint("Vertical", 11))
sketch4.addConstraint(Sketcher.Constraint("Horizontal", 13))
sketch4.addConstraint(Sketcher.Constraint("Vertical", 14))
sketch4.addConstraint(Sketcher.Constraint("Horizontal", 16))
sketch4.addConstraint(Sketcher.Constraint("Vertical", 17))
sketch4.addConstraint(Sketcher.Constraint("Vertical", 19))
sketch4.addConstraint(Sketcher.Constraint("Horizontal", 20))
sketch4.addConstraint(Sketcher.Constraint("Vertical", 21))
sketch4.addConstraint(Sketcher.Constraint("Vertical", 23))
sketch4.addConstraint(Sketcher.Constraint("Horizontal", 24))
sketch4.addConstraint(Sketcher.Constraint("Vertical", 26))
sketch4.addConstraint(Sketcher.Constraint("Horizontal", 27))
sketch4.addConstraint(Sketcher.Constraint("Vertical", 29))
sketch4.addConstraint(Sketcher.Constraint("Horizontal", 30))
sketch4.addConstraint(Sketcher.Constraint("Vertical", 31))
sketch4.addConstraint(Sketcher.Constraint("Horizontal", 33))
sketch4.addConstraint(Sketcher.Constraint("Vertical", 34))
sketch4.addConstraint(Sketcher.Constraint("Horizontal", 36))
sketch4.addConstraint(Sketcher.Constraint("Vertical", 37))
sketch4.addConstraint(Sketcher.Constraint("Vertical", 39))
sketch4.addConstraint(Sketcher.Constraint("Vertical", 40))
sketch4.addConstraint(Sketcher.Constraint("Horizontal", 41))
sketch4.addConstraint(Sketcher.Constraint("Vertical", 42))
sketch4.addConstraint(Sketcher.Constraint("Vertical", 44))
sketch4.addConstraint(Sketcher.Constraint("Horizontal", 45))
sketch4.addConstraint(Sketcher.Constraint("Vertical", 47))
sketch4.addConstraint(Sketcher.Constraint("Horizontal", 48))
sketch4.addConstraint(Sketcher.Constraint("Vertical", 49))
sketch4.addConstraint(Sketcher.Constraint("Horizontal", 51))
sketch4.addConstraint(Sketcher.Constraint("Vertical", 52))
sketch4.addConstraint(Sketcher.Constraint("Vertical", 54))
sketch4.addConstraint(Sketcher.Constraint("Horizontal", 55))
sketch4.addConstraint(Sketcher.Constraint("Vertical", 56))
sketch4.addConstraint(Sketcher.Constraint("Vertical", 58))
sketch4.addConstraint(Sketcher.Constraint("Horizontal", 59))
sketch4.addConstraint(Sketcher.Constraint("Vertical", 60))
sketch4.addConstraint(Sketcher.Constraint("Equal", 5, 8))
sketch4.addConstraint(Sketcher.Constraint("Equal", 8, 12))
sketch4.addConstraint(Sketcher.Constraint("Equal", 12, 15))
sketch4.addConstraint(Sketcher.Constraint("Equal", 2, 18))
sketch4.addConstraint(Sketcher.Constraint("Equal", 18, 22))
sketch4.addConstraint(Sketcher.Constraint("Equal", 15, 25))
sketch4.addConstraint(Sketcher.Constraint("Equal", 25, 28))
sketch4.addConstraint(Sketcher.Constraint("Equal", 28, 32))
sketch4.addConstraint(Sketcher.Constraint("Equal", 32, 35))
sketch4.addConstraint(Sketcher.Constraint("Equal", 22, 38))
sketch4.addConstraint(Sketcher.Constraint("Equal", 35, 46))
sketch4.addConstraint(Sketcher.Constraint("Equal", 46, 50))
sketch4.addConstraint(Sketcher.Constraint("Equal", 43, 53))
sketch4.addConstraint(Sketcher.Constraint("Equal", 53, 57))
sketch4.addConstraint(Sketcher.Constraint("Equal", 57, 61))
sketch4.addConstraint(Sketcher.Constraint("Horizontal", 8, 3, 12, 3))
sketch4.addConstraint(Sketcher.Constraint("Horizontal", 5, 3, 15, 3))
sketch4.addConstraint(Sketcher.Constraint("Horizontal", 2, 3, 18, 3))
sketch4.addConstraint(Sketcher.Constraint("Horizontal", 18, 3, 22, 3))
sketch4.addConstraint(Sketcher.Constraint("Horizontal", 15, 3, 25, 3))
sketch4.addConstraint(Sketcher.Constraint("Horizontal", 12, 3, 28, 3))
sketch4.addConstraint(Sketcher.Constraint("Horizontal", 28, 3, 32, 3))
sketch4.addConstraint(Sketcher.Constraint("Horizontal", 25, 3, 35, 3))
sketch4.addConstraint(Sketcher.Constraint("Horizontal", 22, 3, 38, 3))
sketch4.addConstraint(Sketcher.Constraint("Horizontal", 46, 3, 50, 3))
sketch4.addConstraint(Sketcher.Constraint("Horizontal", 43, 3, 53, 3))
sketch4.addConstraint(Sketcher.Constraint("Horizontal", 57, 3, 61, 3))
sketch4.addConstraint(Sketcher.Constraint("Horizontal", 0, 2, 6, 2))
sketch4.addConstraint(Sketcher.Constraint("Horizontal", 19, 2, 20, 2))
sketch4.addConstraint(Sketcher.Constraint("Horizontal", 10, 2, 29, 2))
sketch4.addConstraint(Sketcher.Constraint("Horizontal", 41, 2, 44, 2))
sketch4.addConstraint(Sketcher.Constraint("Horizontal", 30, 2, 47, 2))
sketch4.addConstraint(Sketcher.Constraint("Horizontal", 51, 2, 54, 2))
sketch4.addConstraint(Sketcher.Constraint("Horizontal", 55, 2, 58, 2))
sketch4.addConstraint(Sketcher.Constraint("Equal", 7, 13))
sketch4.addConstraint(Sketcher.Constraint("Equal", 4, 16))
sketch4.addConstraint(Sketcher.Constraint("Equal", 0, 20))
sketch4.addConstraint(Sketcher.Constraint("Equal", 16, 24))
sketch4.addConstraint(Sketcher.Constraint("Equal", 13, 27))
sketch4.addConstraint(Sketcher.Constraint("Equal", 10, 30))
sketch4.addConstraint(Sketcher.Constraint("Equal", 27, 33))
sketch4.addConstraint(Sketcher.Constraint("Equal", 45, 51))
sketch4.addConstraint(Sketcher.Constraint("Equal", 41, 55))
sketch4.addConstraint(Sketcher.Constraint("Radius", 2, 0.7))
sketch4.addConstraint(Sketcher.Constraint("Radius", 43, 0.5))
sketch4.addConstraint(Sketcher.Constraint("DistanceY", 1, 1, 1, 2, 3.0))
sketch4.addConstraint(Sketcher.Constraint("Radius", 5, 0.25))
sketch4.addConstraint(Sketcher.Constraint("DistanceX", 0, 2, 0, 1, 2.4))
sketch4.addConstraint(Sketcher.Constraint("DistanceX", 4, 2, 4, 1, 1.1))
sketch4.addConstraint(Sketcher.Constraint("DistanceX", 10, 1, 10, 2, 10.7))
sketch4.addConstraint(Sketcher.Constraint("DistanceX", 59, 2, 59, 1, 3.5))
sketch4.addConstraint(Sketcher.Constraint("DistanceY", 40, 2, 40, 1, 4.1))
sketch4.addConstraint(Sketcher.Constraint("DistanceY", 42, 1, 42, 2, 2.1))
sketch4.addConstraint(Sketcher.Constraint("DistanceX", 2, 2, -1, 1, 31.0))
sketch4.addConstraint(Sketcher.Constraint("DistanceY", 9, 2, -1, 1, 28.0))
sketch4.addConstraint(Sketcher.Constraint("DistanceX", 22, 2, -1, 1, 18.0))
sketch4.addConstraint(Sketcher.Constraint("DistanceY", 3, 2, 3, 1, 2.34))
sketch4.addConstraint(Sketcher.Constraint("DistanceY", 9, 2, 9, 1, 8.95))
sketch4.addConstraint(Sketcher.Constraint("DistanceX", 41, 2, 41, 1, 2.365))
sketch4.addConstraint(Sketcher.Constraint("DistanceX", 45, 2, 45, 1, 1.735))
sketch4.addConstraint(Sketcher.Constraint("DistanceY", 47, 2, 47, 1, 14.125))
sketch4.addConstraint(Sketcher.Constraint("DistanceX", 48, 1, 48, 2, 15.9675))
sketch4.addConstraint(Sketcher.Constraint("DistanceX", -1, 1, 48, 2, 8.235))
pocket2 = body.newObject("PartDesign::Pocket", "Pocket001")
pocket2.Profile = sketch4
pocket2.Type = "ThroughAll"

doc.recompute()
